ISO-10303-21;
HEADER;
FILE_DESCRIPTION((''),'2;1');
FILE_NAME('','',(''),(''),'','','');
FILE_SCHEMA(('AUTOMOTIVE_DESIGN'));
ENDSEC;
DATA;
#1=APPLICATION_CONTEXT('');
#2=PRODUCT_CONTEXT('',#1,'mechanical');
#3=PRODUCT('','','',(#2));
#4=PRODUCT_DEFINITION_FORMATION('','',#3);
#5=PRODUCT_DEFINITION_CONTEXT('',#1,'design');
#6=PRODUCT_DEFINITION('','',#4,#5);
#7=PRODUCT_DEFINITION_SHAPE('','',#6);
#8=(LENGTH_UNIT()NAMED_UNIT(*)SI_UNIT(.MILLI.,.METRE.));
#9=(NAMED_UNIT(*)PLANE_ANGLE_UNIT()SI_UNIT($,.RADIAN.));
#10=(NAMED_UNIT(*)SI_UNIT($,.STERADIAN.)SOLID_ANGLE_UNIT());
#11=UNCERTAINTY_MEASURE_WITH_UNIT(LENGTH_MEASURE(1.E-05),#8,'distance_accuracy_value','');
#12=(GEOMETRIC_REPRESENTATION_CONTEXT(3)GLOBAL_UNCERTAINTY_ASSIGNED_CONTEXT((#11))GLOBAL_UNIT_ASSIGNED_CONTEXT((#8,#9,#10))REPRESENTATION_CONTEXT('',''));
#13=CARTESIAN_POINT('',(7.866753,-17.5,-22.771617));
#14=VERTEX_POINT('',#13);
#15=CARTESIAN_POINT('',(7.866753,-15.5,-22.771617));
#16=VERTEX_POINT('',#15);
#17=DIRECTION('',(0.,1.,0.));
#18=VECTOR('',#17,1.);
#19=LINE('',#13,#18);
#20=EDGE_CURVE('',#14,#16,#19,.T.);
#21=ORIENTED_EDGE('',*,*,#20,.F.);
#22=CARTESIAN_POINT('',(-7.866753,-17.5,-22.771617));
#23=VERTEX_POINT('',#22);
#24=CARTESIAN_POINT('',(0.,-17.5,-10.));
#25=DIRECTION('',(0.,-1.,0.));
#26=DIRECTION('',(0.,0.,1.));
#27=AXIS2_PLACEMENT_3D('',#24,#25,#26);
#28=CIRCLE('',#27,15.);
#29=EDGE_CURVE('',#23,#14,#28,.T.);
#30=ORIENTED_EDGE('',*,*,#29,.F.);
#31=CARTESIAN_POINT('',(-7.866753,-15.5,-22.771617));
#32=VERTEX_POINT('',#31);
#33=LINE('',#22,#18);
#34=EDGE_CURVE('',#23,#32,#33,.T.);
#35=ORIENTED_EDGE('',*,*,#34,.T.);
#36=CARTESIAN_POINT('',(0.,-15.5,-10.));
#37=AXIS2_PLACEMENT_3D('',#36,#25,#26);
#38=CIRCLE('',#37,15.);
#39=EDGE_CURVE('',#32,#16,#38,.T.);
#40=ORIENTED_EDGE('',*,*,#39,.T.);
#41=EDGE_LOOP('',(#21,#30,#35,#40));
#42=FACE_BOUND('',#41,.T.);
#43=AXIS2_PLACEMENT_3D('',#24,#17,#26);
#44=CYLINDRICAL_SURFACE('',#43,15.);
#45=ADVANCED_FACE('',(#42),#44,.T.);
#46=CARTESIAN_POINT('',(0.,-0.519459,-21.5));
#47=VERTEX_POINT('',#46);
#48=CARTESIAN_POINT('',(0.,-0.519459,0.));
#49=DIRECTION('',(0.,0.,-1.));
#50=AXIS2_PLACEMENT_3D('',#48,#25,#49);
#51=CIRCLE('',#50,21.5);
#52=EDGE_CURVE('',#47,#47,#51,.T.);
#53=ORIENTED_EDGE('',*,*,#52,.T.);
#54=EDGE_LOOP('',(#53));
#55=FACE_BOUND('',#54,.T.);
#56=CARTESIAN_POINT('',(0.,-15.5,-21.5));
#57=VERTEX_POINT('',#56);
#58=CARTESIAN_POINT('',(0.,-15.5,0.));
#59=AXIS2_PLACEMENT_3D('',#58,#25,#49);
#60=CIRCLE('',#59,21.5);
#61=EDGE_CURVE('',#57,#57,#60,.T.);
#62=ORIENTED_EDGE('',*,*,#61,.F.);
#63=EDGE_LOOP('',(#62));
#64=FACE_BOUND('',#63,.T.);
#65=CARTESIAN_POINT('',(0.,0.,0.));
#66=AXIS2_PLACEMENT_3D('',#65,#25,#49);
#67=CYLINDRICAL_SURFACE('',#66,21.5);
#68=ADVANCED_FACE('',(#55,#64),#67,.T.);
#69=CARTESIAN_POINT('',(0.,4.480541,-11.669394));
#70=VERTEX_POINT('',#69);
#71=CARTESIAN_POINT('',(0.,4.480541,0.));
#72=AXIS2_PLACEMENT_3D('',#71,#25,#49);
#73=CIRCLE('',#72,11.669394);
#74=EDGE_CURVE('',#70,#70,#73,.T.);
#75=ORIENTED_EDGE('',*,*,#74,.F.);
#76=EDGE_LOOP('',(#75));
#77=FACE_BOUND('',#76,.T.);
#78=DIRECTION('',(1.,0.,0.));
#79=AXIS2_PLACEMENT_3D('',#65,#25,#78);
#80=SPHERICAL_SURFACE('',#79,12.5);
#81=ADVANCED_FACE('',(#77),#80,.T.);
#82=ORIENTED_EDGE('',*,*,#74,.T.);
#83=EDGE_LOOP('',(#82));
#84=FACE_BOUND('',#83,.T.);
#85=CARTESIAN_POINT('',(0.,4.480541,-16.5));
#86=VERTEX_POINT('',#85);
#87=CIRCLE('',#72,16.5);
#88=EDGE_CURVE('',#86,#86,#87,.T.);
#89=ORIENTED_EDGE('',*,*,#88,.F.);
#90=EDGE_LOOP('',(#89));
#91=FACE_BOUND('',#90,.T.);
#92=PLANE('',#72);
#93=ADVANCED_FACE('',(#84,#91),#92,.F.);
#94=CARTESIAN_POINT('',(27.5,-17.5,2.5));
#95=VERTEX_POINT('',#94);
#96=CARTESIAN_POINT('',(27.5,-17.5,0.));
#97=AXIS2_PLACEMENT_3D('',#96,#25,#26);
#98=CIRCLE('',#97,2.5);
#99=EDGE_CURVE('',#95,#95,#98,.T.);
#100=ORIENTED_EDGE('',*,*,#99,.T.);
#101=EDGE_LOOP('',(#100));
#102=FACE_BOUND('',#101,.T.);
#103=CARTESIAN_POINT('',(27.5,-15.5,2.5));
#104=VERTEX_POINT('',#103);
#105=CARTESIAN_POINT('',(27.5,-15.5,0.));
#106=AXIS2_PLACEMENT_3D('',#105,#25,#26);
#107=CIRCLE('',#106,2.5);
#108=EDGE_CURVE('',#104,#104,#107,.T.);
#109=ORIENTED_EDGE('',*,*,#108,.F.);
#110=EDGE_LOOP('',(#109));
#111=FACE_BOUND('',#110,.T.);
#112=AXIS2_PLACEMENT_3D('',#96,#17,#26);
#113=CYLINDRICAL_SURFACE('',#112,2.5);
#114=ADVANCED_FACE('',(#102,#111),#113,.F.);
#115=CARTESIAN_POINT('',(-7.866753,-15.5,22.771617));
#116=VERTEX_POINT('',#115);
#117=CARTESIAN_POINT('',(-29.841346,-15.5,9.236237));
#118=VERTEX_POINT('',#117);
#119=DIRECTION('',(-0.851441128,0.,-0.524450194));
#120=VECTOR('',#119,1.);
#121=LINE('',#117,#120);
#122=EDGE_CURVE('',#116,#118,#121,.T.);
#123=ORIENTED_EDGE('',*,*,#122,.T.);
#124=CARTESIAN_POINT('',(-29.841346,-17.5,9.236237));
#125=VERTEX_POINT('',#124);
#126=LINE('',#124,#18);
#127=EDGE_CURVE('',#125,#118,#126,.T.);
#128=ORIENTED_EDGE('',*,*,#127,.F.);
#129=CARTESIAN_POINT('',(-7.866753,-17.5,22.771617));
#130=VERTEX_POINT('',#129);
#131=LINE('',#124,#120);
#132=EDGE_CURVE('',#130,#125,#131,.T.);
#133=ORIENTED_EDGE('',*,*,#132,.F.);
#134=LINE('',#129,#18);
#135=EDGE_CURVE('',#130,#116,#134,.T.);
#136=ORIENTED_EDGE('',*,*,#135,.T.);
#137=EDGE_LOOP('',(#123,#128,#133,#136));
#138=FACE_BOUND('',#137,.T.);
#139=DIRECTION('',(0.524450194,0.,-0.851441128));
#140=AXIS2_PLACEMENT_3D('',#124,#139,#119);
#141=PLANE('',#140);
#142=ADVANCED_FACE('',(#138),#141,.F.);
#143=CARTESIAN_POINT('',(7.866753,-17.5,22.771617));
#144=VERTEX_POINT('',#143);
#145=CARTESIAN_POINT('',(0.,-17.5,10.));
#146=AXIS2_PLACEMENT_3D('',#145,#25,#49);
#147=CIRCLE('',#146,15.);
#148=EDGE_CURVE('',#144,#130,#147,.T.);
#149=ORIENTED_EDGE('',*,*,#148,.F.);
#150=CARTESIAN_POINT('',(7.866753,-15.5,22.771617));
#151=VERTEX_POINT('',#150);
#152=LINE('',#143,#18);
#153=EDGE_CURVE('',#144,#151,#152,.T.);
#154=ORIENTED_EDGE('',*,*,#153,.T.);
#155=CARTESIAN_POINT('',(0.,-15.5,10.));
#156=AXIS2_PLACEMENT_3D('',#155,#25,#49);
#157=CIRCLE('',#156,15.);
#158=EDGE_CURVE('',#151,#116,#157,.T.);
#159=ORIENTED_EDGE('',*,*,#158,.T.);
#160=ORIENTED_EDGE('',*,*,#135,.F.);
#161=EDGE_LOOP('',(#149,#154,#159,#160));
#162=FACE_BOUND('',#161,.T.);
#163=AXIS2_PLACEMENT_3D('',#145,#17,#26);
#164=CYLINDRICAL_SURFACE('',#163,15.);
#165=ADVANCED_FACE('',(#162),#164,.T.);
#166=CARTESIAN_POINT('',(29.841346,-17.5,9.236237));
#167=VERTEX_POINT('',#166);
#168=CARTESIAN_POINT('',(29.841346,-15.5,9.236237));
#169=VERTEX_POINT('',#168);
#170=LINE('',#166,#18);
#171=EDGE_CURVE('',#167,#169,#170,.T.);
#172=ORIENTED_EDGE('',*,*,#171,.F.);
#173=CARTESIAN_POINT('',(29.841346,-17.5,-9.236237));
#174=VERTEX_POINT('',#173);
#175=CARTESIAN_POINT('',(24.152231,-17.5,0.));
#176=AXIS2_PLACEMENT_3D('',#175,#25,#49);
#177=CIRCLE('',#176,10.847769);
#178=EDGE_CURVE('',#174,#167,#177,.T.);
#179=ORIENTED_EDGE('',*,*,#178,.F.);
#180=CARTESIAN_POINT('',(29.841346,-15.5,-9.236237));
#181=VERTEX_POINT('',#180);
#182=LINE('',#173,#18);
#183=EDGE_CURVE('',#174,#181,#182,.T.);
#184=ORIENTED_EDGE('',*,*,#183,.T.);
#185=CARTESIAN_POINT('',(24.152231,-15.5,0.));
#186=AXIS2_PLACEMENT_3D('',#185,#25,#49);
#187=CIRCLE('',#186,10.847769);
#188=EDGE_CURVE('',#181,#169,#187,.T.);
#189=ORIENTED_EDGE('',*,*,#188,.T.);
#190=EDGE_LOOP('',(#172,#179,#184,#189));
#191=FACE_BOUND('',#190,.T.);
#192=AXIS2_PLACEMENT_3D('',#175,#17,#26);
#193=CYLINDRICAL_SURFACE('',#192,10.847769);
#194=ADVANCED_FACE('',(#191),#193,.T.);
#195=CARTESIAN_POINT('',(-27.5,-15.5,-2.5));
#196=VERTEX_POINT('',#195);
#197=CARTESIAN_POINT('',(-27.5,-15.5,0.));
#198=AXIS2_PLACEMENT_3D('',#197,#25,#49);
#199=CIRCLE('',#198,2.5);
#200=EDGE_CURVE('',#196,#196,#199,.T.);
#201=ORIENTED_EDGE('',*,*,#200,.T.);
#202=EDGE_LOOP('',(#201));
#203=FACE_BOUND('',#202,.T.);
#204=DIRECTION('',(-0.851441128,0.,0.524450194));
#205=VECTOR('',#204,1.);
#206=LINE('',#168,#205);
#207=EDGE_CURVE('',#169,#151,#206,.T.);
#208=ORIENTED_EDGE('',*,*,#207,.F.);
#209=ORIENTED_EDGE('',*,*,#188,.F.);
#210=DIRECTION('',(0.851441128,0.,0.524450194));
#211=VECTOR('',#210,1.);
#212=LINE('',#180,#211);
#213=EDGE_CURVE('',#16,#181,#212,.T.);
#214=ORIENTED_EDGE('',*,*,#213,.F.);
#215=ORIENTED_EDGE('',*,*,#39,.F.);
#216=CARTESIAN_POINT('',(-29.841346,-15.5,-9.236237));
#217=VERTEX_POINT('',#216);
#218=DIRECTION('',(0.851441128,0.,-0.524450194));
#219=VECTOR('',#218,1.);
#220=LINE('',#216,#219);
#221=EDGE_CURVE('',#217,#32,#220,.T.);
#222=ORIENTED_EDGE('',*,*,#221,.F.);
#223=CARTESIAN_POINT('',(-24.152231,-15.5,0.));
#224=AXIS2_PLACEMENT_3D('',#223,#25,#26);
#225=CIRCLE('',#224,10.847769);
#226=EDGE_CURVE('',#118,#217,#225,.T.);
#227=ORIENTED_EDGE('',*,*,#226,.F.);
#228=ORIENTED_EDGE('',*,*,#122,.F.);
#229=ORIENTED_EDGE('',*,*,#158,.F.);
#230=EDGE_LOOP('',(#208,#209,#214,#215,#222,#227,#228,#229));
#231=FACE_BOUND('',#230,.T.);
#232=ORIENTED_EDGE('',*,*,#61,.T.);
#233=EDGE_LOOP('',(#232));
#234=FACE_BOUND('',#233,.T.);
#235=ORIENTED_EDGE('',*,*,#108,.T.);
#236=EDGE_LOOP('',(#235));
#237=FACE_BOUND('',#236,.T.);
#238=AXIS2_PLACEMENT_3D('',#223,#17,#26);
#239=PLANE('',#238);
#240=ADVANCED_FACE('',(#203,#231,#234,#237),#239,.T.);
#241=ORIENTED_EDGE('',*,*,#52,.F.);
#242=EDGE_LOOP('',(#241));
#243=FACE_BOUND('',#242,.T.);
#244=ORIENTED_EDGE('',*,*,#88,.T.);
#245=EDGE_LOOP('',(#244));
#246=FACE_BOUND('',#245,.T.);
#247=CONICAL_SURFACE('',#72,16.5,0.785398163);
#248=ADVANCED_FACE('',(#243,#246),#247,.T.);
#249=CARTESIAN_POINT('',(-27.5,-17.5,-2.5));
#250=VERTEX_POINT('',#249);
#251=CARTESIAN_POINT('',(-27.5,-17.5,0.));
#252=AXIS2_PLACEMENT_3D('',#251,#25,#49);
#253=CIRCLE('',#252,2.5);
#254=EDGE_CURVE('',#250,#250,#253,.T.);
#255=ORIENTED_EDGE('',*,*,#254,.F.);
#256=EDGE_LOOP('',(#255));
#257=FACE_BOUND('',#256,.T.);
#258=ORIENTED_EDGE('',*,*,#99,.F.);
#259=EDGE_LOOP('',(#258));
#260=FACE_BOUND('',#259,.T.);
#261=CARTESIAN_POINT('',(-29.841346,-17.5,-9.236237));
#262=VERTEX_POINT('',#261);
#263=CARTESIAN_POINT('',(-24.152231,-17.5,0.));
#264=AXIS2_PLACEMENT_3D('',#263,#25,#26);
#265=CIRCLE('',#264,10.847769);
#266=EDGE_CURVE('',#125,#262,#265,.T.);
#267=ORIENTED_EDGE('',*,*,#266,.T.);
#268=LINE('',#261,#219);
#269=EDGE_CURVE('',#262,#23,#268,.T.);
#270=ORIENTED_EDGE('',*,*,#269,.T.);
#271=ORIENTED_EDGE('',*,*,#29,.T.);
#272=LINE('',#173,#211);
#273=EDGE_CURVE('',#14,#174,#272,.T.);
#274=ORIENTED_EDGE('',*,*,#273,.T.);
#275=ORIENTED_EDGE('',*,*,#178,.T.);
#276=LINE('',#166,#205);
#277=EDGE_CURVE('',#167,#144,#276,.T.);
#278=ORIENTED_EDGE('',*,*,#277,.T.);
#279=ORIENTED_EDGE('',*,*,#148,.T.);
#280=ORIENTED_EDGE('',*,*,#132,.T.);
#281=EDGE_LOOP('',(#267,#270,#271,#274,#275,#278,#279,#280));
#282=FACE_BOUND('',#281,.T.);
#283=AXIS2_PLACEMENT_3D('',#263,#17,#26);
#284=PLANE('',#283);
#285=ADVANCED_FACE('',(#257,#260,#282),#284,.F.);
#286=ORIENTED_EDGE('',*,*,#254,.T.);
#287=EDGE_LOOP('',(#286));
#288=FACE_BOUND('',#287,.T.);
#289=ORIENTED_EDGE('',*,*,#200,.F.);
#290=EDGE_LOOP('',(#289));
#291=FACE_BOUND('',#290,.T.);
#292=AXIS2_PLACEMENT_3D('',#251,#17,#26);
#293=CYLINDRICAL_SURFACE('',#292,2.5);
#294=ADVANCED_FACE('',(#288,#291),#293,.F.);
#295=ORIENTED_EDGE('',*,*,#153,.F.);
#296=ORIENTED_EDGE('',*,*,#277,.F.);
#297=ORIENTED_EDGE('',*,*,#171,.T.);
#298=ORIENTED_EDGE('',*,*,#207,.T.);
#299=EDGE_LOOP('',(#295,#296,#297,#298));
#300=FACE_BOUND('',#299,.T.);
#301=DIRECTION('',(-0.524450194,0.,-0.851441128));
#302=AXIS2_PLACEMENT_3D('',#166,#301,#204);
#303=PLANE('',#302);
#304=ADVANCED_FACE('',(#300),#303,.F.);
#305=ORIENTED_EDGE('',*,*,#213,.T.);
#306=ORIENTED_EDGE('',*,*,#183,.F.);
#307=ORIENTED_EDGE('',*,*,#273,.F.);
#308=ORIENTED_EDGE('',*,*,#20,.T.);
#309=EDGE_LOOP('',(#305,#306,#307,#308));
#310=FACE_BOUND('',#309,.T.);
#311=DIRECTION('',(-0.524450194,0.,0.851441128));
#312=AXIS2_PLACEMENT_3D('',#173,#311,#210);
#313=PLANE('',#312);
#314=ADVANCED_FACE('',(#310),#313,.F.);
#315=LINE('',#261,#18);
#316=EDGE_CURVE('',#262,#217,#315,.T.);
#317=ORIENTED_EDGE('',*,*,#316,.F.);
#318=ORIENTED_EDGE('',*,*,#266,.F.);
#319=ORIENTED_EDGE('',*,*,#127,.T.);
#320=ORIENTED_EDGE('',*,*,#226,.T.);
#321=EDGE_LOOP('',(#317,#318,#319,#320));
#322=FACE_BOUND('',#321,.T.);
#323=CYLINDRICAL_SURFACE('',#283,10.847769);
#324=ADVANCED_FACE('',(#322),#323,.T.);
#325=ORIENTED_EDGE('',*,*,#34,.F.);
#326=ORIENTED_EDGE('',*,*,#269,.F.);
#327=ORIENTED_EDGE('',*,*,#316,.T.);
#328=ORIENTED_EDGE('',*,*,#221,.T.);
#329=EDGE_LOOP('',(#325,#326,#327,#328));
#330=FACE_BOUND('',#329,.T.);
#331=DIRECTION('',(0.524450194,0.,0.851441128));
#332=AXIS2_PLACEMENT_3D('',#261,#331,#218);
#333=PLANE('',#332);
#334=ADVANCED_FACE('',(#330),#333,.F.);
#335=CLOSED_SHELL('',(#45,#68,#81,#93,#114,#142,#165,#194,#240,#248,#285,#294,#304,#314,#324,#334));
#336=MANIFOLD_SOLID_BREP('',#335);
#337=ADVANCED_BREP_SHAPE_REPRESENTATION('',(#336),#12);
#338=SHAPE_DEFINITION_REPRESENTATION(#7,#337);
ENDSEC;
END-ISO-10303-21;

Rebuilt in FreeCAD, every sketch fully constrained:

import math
import FreeCAD as App
import Part
import Sketcher
Q = App.Units.Quantity

doc = App.newDocument("Part")
body = doc.addObject("PartDesign::Body", "Body")

# Sketch on XY plane
sketch1 = body.newObject("Sketcher::SketchObject", "Sketch")
sketch1.AttachmentSupport = (doc.getObject("XY_Plane"), [""])
sketch1.MapMode = "FlatFace"
sketch1.addGeometry([
    Part.ArcOfCircle(Part.Circle(App.Vector(0, 0, 0), App.Vector(0, 0, 1), 12.5), math.radians(90), math.radians(159)),  # 0
    Part.LineSegment(App.Vector(-11.7, 4.5, 0), App.Vector(-16.5, 4.5, 0)),  # 1
    Part.LineSegment(App.Vector(-16.5, 4.5, 0), App.Vector(-21.5, -0.5, 0)),  # 2
    Part.LineSegment(App.Vector(-21.5, -0.5, 0), App.Vector(-21.5, -15.5, 0)),  # 3
    Part.LineSegment(App.Vector(-21.5, -15.5, 0), App.Vector(0, -15.5, 0)),  # 4
    Part.LineSegment(App.Vector(0, -15.5, 0), App.Vector(0, 12.5, 0)),  # 5
], False)
sketch1.addConstraint([
    Sketcher.Constraint("Coincident", 0, 2, 1, 1),
    Sketcher.Constraint("Coincident", 1, 2, 2, 1),
    Sketcher.Constraint("Coincident", 2, 2, 3, 1),
    Sketcher.Constraint("Coincident", 3, 2, 4, 1),
    Sketcher.Constraint("Coincident", 4, 2, 5, 1),
    Sketcher.Constraint("Coincident", 5, 2, 0, 1),
    Sketcher.Constraint("Horizontal", 1),
    Sketcher.Constraint("Vertical", 3),
    Sketcher.Constraint("Horizontal", 4),
    Sketcher.Constraint("Vertical", 5),
    Sketcher.Constraint("Coincident", 0, 3, -1, 1),
    Sketcher.Constraint("PointOnObject", 4, 2, -2),
    Sketcher.Constraint("Radius", 0, 12.5),
    Sketcher.Constraint("DistanceY", 5, 1, 5, 2, 28.0),
    Sketcher.Constraint("Angle", 2, Q("-135 deg")),
    Sketcher.Constraint("DistanceX", 4, 1, 4, 2, 21.5),
    Sketcher.Constraint("DistanceX", 2, 2, 1, 2, 5.0),
    Sketcher.Constraint("DistanceY", 3, 2, 3, 1, 14.980541),
])
revolution = body.newObject("PartDesign::Revolution", "Revolution")
revolution.Profile = sketch1
revolution.ReferenceAxis = (sketch1, ["V_Axis"])
revolution.Angle = 360

# Sketch on XZ plane
sketch2 = body.newObject("Sketcher::SketchObject", "Sketch001")
sketch2.AttachmentSupport = (doc.getObject("XZ_Plane"), [""])
sketch2.MapMode = "FlatFace"
sketch2.AttachmentOffset = App.Placement(App.Vector(0, 0, 15.5), App.Rotation())
sketch2.addGeometry([
    Part.LineSegment(App.Vector(-7.9, 22.8, 0), App.Vector(-29.8, 9.2, 0)),  # 0
    Part.ArcOfCircle(Part.Circle(App.Vector(-24.2, 0, 0), App.Vector(0, 0, 1), 10.8), math.radians(122), math.radians(238)),  # 1
    Part.LineSegment(App.Vector(-29.8, -9.2, 0), App.Vector(-7.9, -22.8, 0)),  # 2
    Part.ArcOfCircle(Part.Circle(App.Vector(0, -10, 0), App.Vector(0, 0, 1), 15), math.radians(-122), math.radians(-58)),  # 3
    Part.LineSegment(App.Vector(7.9, -22.8, 0), App.Vector(29.8, -9.2, 0)),  # 4
    Part.ArcOfCircle(Part.Circle(App.Vector(24.2, 0, 0), App.Vector(0, 0, 1), 10.8), math.radians(-58), math.radians(58)),  # 5
    Part.LineSegment(App.Vector(29.8, 9.2, 0), App.Vector(7.9, 22.8, 0)),  # 6
    Part.ArcOfCircle(Part.Circle(App.Vector(0, 10, 0), App.Vector(0, 0, 1), 15), math.radians(58), math.radians(122)),  # 7
    Part.Circle(App.Vector(27.5, 0, 0), App.Vector(0, 0, 1), 2.5),  # 8
    Part.Circle(App.Vector(-27.5, 0, 0), App.Vector(0, 0, 1), 2.5),  # 9
], False)
sketch2.addConstraint([
    Sketcher.Constraint("Tangent", 0, 2, 1, 1),
    Sketcher.Constraint("Tangent", 1, 2, 2, 1),
    Sketcher.Constraint("Tangent", 2, 2, 3, 1),
    Sketcher.Constraint("Tangent", 3, 2, 4, 1),
    Sketcher.Constraint("Tangent", 4, 2, 5, 1),
    Sketcher.Constraint("Tangent", 5, 2, 6, 1),
    Sketcher.Constraint("Tangent", 6, 2, 7, 1),
    Sketcher.Constraint("Tangent", 7, 2, 0, 1),
    Sketcher.Constraint("Equal", 1, 5),
    Sketcher.Constraint("Equal", 3, 7),
    Sketcher.Constraint("Equal", 8, 9),
    Sketcher.Constraint("Symmetric", 1, 3, 5, 3, -1, 1),
    Sketcher.Constraint("Symmetric", 3, 3, 7, 3, -1, 1),
    Sketcher.Constraint("Symmetric", 8, 3, 9, 3, -1, 1),
    Sketcher.Constraint("Symmetric", 2, 2, 3, 2, -2),
    Sketcher.Constraint("PointOnObject", 8, 3, -1),
    Sketcher.Constraint("Diameter", 8, 5.0),
    Sketcher.Constraint("Radius", 3, 15.0),
    Sketcher.Constraint("DistanceY", 3, 3, -1, 1, 10.0),
    Sketcher.Constraint("DistanceX", 9, 3, 8, 3, 55.0),
    Sketcher.Constraint("Radius", 1, 10.847769),
    Sketcher.Constraint("DistanceX", 1, 3, -1, 1, 24.152231),
])
pad1 = body.newObject("PartDesign::Pad", "Pad")
pad1.Profile = sketch2
pad1.Length = 2

doc.recompute()
